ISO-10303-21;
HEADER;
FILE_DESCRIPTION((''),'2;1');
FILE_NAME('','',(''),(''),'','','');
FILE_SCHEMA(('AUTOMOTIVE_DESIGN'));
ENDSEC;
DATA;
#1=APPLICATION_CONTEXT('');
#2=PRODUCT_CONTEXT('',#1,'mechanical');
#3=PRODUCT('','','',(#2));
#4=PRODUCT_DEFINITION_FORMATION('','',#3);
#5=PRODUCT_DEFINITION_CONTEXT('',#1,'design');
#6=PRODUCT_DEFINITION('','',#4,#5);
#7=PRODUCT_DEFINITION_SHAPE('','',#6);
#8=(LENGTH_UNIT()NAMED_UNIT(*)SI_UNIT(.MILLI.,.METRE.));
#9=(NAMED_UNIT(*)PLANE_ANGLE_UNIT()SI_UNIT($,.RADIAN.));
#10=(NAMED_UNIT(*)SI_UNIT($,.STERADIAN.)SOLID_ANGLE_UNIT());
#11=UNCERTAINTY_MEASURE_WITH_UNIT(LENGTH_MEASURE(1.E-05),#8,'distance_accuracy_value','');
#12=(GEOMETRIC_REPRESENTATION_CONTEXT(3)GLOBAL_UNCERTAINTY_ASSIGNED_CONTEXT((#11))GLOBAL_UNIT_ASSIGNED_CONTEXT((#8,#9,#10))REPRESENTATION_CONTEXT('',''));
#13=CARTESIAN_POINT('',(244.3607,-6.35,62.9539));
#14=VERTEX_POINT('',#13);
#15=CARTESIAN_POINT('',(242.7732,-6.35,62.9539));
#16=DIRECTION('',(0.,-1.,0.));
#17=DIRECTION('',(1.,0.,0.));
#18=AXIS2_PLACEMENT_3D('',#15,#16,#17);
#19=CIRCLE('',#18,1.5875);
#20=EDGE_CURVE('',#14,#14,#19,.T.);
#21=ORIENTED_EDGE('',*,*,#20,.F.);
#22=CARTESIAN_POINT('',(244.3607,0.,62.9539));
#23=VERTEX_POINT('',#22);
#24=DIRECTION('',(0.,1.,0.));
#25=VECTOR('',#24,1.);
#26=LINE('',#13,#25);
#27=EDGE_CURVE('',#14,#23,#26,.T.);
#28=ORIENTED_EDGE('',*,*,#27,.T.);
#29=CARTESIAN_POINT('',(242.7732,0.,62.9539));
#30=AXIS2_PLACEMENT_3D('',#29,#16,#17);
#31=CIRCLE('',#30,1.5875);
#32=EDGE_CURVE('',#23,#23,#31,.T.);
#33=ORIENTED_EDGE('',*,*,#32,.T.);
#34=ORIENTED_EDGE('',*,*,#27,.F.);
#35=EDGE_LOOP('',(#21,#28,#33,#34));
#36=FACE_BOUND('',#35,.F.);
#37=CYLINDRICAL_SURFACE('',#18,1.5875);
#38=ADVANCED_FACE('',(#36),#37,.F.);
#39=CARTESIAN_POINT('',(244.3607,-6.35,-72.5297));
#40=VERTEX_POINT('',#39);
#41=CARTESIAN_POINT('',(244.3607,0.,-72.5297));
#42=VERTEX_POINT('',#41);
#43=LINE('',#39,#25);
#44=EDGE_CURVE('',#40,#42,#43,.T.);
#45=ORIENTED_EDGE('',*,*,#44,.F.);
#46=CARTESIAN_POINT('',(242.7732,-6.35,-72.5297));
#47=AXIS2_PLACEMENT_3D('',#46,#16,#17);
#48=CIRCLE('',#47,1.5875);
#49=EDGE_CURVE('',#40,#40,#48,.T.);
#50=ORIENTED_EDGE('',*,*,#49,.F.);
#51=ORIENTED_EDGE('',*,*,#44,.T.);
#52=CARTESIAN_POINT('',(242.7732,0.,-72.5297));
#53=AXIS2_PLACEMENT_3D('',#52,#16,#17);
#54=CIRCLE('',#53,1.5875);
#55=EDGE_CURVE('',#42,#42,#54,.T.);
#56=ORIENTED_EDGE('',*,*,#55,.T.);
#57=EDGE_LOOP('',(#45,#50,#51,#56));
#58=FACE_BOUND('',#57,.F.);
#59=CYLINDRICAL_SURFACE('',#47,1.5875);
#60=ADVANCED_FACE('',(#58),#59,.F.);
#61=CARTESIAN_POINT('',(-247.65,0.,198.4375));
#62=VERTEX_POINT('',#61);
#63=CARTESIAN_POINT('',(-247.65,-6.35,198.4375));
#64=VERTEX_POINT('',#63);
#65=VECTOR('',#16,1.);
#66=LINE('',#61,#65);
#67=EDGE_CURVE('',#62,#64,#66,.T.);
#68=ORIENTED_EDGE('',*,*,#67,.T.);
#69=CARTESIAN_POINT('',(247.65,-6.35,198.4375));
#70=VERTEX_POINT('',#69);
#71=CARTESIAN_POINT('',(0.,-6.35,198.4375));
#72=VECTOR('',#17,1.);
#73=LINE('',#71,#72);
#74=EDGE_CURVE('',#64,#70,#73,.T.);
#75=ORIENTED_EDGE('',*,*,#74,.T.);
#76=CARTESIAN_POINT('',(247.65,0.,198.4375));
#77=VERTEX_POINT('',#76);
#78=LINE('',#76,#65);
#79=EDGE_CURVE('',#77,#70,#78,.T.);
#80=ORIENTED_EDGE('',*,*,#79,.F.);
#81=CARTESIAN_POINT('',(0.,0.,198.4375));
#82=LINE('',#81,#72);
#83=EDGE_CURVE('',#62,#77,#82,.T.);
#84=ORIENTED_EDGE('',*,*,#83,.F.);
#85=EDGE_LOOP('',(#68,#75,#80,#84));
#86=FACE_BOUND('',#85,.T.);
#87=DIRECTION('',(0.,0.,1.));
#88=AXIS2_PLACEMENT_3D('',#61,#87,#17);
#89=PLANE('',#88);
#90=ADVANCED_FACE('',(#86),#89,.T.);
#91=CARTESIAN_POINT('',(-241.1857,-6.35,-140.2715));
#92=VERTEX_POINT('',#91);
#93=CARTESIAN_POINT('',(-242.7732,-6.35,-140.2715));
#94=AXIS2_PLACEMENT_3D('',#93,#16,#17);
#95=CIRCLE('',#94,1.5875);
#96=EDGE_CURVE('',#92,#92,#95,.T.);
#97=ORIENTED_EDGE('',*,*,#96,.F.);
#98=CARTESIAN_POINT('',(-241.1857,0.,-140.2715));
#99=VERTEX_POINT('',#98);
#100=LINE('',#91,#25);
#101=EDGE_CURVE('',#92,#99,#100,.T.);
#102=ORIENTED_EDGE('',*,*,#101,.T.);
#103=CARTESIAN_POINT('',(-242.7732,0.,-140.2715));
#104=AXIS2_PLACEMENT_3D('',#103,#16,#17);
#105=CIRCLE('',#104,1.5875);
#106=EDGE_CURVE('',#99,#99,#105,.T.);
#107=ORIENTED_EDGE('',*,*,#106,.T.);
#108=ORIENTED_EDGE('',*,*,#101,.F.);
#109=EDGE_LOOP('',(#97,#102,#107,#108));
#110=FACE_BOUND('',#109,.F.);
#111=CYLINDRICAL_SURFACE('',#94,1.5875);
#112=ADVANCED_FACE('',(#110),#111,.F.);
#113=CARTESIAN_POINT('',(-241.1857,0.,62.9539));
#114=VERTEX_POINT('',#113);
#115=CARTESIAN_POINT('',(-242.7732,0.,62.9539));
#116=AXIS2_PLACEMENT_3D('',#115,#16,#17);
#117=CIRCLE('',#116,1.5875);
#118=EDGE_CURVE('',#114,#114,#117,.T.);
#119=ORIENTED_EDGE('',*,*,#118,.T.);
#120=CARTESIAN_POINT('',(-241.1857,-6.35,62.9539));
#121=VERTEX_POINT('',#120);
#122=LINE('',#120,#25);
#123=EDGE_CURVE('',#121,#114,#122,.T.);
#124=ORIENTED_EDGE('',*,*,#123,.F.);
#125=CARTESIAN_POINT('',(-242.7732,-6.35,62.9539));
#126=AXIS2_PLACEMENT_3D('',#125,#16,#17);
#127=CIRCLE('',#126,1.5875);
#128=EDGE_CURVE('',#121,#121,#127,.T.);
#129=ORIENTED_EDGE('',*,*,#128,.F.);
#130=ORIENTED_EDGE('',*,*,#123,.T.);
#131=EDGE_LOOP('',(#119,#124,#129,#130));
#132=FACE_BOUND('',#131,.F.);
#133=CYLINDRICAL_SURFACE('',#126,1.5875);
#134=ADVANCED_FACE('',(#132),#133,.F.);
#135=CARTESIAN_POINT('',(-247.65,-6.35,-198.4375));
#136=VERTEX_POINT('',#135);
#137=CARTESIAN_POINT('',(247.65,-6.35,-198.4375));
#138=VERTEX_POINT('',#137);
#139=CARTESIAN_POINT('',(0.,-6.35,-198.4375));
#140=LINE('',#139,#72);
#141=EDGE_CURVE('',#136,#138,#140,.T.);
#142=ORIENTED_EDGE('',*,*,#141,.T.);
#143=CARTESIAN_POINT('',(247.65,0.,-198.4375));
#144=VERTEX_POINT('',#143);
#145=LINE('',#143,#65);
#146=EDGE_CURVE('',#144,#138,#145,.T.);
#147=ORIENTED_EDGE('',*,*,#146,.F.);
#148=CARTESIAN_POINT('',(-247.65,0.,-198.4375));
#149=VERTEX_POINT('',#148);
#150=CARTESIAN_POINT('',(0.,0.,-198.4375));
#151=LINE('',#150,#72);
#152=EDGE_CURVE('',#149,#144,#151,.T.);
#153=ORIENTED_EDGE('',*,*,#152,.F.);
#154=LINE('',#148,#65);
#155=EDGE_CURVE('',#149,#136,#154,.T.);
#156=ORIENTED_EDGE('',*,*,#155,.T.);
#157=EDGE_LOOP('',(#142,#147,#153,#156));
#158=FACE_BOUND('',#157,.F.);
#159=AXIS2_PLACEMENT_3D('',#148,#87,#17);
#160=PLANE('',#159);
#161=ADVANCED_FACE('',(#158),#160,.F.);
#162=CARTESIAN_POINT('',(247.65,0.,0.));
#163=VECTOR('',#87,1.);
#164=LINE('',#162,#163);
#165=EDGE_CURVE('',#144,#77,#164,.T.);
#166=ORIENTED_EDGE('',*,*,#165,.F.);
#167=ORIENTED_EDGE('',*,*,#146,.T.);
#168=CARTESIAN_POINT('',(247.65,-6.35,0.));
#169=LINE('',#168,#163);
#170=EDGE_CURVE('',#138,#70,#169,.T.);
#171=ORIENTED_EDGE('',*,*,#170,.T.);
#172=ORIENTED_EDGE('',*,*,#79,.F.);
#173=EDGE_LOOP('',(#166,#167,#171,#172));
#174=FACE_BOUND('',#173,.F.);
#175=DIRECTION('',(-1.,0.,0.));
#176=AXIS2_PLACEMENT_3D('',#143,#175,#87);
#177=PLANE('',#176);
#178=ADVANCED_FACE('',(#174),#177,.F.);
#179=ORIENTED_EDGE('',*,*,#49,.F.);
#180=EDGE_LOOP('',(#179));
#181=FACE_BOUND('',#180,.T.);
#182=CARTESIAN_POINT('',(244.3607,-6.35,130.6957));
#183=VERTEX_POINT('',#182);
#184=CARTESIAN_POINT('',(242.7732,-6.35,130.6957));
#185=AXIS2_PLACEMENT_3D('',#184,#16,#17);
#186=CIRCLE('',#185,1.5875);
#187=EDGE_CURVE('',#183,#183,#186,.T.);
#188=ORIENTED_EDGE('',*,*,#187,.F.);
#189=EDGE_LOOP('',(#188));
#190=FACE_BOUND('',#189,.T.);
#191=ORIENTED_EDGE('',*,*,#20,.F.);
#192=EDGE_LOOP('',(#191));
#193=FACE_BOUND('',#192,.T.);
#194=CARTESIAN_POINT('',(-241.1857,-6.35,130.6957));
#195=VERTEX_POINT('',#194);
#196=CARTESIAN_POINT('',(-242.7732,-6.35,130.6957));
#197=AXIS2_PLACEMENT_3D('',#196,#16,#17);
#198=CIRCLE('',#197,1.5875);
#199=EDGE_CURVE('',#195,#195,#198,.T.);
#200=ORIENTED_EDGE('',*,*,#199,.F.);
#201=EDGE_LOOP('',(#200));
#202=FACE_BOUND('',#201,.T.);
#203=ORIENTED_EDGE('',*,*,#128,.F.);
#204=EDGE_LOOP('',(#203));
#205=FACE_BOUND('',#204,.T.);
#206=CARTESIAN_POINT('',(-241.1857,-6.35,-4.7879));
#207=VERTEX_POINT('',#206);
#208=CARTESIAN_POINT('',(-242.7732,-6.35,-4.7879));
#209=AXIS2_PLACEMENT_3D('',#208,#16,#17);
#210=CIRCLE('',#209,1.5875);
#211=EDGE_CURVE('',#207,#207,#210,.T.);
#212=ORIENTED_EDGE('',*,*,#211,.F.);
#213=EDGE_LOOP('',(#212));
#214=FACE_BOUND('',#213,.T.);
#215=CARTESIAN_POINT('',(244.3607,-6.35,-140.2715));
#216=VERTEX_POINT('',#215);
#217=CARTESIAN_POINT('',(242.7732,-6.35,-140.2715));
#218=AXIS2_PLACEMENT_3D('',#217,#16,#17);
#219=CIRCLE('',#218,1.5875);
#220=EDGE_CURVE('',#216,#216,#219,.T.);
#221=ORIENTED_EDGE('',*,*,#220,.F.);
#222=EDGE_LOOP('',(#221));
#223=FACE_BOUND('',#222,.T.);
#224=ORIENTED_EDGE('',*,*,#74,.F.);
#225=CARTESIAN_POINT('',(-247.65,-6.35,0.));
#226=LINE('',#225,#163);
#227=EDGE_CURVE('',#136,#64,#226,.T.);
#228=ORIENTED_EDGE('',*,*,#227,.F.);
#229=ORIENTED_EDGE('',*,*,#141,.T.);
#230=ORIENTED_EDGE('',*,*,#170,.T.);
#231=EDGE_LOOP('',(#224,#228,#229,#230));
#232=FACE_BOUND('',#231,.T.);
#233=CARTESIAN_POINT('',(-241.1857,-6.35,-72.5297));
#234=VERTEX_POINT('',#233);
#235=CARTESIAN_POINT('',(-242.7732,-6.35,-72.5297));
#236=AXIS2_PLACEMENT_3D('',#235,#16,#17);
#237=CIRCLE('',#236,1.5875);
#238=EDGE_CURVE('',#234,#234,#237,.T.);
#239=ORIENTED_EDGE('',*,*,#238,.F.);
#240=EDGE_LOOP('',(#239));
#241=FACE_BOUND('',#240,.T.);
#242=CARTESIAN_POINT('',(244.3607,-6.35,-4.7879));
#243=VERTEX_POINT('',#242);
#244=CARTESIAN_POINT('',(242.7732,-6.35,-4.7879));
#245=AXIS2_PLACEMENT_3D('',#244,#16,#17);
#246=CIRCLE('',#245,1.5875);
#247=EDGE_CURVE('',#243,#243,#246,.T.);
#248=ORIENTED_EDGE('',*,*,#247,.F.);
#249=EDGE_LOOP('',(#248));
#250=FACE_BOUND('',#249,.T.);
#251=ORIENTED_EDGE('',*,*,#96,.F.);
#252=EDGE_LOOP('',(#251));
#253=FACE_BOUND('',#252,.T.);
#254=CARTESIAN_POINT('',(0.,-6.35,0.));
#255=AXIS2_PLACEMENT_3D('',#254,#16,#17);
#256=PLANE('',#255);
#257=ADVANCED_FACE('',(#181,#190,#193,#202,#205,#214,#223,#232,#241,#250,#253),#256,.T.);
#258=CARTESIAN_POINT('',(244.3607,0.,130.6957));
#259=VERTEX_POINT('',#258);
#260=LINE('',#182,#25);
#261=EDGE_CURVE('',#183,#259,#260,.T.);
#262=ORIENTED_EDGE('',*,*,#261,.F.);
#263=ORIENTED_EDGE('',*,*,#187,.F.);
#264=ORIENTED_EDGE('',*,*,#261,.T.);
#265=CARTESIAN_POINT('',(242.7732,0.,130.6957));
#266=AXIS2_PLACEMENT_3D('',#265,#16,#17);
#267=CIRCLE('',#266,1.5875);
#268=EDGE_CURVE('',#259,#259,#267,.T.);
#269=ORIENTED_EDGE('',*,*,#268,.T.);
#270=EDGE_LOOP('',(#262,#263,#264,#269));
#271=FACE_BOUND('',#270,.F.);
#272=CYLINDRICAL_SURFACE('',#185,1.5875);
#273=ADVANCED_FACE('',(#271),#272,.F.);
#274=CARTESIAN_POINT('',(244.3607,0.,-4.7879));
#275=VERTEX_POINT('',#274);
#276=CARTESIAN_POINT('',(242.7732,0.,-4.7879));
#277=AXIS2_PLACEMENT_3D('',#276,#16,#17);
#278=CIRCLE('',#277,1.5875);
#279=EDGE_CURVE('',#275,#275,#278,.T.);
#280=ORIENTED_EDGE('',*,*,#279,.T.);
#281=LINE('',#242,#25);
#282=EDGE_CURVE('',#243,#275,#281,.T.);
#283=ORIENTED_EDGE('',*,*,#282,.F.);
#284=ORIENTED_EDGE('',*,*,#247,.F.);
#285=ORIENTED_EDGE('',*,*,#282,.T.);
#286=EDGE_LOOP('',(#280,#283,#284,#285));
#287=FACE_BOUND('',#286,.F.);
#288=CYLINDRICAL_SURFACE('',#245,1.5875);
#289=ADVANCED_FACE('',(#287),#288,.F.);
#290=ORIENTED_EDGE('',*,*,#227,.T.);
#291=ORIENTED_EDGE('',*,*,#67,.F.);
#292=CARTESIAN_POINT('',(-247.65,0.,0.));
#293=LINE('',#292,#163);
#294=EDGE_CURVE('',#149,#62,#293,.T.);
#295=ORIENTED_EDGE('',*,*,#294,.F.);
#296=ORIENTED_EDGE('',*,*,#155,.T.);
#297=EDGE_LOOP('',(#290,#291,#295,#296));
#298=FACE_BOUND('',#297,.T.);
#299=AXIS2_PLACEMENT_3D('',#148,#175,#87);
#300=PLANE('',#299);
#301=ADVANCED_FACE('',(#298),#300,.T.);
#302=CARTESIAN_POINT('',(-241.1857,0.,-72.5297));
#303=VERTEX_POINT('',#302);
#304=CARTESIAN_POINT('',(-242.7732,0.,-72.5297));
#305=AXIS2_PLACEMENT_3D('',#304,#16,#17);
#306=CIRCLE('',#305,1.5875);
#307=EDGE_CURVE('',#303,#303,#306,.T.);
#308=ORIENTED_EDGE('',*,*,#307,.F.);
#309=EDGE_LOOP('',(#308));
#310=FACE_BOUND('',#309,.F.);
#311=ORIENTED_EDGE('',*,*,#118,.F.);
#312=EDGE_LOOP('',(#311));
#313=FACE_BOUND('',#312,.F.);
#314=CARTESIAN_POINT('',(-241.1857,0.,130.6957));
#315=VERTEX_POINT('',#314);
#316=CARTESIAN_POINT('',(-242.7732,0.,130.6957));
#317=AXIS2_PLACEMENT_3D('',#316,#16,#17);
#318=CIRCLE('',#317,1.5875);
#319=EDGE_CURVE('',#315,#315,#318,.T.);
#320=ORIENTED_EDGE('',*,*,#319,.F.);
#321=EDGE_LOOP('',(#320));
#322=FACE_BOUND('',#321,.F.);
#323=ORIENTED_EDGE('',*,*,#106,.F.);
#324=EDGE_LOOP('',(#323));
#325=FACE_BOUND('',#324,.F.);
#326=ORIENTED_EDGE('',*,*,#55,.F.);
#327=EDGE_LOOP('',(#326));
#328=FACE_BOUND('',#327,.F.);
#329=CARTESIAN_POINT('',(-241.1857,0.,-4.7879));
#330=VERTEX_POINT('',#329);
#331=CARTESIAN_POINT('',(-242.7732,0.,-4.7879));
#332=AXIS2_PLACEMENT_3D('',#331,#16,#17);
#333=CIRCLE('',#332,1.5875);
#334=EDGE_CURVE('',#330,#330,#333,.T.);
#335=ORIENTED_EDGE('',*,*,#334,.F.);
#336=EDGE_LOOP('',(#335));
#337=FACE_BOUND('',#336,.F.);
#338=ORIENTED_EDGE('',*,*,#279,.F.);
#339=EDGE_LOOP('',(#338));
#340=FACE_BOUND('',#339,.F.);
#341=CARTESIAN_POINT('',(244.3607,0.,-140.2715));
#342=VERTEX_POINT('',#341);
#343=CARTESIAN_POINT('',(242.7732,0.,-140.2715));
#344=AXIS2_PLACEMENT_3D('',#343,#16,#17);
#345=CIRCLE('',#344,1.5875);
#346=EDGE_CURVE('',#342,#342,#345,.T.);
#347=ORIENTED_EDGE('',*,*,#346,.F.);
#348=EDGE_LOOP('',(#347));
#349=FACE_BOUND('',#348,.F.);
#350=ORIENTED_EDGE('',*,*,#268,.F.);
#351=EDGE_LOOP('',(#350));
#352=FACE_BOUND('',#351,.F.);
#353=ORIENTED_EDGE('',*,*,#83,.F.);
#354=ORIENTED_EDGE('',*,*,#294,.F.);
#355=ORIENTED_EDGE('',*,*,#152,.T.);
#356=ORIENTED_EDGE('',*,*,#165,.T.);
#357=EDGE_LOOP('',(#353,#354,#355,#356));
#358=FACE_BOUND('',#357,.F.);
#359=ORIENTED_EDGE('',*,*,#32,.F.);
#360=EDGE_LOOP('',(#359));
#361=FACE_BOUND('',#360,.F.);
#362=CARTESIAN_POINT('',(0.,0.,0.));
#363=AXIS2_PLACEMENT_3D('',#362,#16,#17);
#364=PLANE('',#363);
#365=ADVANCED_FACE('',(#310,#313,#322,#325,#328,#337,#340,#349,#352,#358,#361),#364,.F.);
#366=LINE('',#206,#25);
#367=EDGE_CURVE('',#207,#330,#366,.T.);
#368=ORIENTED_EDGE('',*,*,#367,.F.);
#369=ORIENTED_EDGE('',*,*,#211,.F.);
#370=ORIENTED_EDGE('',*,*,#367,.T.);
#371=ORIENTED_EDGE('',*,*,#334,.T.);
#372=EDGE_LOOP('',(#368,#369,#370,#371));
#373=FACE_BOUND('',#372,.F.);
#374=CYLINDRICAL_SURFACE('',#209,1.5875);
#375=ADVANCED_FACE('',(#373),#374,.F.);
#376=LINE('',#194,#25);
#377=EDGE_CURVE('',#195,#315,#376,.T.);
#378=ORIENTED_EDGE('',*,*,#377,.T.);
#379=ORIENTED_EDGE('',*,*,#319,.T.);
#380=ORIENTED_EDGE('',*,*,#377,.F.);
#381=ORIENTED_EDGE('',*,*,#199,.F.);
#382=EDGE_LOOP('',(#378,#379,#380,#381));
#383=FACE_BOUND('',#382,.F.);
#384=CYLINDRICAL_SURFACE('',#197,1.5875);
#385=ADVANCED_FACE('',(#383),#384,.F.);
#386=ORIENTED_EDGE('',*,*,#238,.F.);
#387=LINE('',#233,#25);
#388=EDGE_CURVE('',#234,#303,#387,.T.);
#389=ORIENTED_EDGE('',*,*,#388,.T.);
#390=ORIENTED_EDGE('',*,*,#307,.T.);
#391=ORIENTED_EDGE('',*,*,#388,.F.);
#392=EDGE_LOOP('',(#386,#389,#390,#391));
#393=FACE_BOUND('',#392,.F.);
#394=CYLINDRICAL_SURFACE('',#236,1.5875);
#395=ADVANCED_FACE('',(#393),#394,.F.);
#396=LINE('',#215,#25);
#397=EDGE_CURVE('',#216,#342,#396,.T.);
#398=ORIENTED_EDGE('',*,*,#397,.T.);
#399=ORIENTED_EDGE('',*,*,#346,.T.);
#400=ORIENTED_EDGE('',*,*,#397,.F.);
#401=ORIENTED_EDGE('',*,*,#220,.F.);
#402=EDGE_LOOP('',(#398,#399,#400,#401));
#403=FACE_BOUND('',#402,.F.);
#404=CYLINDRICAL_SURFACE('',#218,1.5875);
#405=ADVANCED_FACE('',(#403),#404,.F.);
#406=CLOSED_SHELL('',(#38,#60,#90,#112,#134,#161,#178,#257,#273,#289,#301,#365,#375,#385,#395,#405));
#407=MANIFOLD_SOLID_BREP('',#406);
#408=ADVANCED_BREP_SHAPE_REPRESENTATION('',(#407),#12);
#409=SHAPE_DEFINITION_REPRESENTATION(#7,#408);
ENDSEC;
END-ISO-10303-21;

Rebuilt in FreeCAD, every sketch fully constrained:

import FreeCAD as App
import Part
import Sketcher
Q = App.Units.Quantity

doc = App.newDocument("Part")
body = doc.addObject("PartDesign::Body", "Body")

sketch1 = body.newObject("Sketcher::SketchObject", "Sketch")
sketch1.AttachmentSupport = (doc.getObject("XZ_Plane"), [""])
sketch1.MapMode = "FlatFace"
sketch1.addGeometry(Part.LineSegment(App.Vector(-248, 198, 0), App.Vector(-248, -198, 0)), False)
sketch1.addGeometry(Part.LineSegment(App.Vector(-248, -198, 0), App.Vector(248, -198, 0)), False)
sketch1.addGeometry(Part.LineSegment(App.Vector(248, -198, 0), App.Vector(248, 198, 0)), False)
sketch1.addGeometry(Part.LineSegment(App.Vector(248, 198, 0), App.Vector(-248, 198, 0)), False)
sketch1.addConstraint(Sketcher.Constraint("Coincident", 0, 2, 1, 1))
sketch1.addConstraint(Sketcher.Constraint("Coincident", 1, 2, 2, 1))
sketch1.addConstraint(Sketcher.Constraint("Coincident", 2, 2, 3, 1))
sketch1.addConstraint(Sketcher.Constraint("Coincident", 3, 2, 0, 1))
sketch1.addConstraint(Sketcher.Constraint("Vertical", 0))
sketch1.addConstraint(Sketcher.Constraint("Horizontal", 1))
sketch1.addConstraint(Sketcher.Constraint("Vertical", 2))
sketch1.addConstraint(Sketcher.Constraint("Horizontal", 3))
sketch1.addConstraint(Sketcher.Constraint("Symmetric", 0, 2, 2, 2, -1, 1))
sketch1.addConstraint(Sketcher.Constraint("DistanceX", 1, 1, 1, 2, Q("19.5 in")))
sketch1.addConstraint(Sketcher.Constraint("DistanceY", 0, 2, 0, 1, Q("15.625 in")))
pad1 = body.newObject("PartDesign::Pad", "Pad")
pad1.Profile = sketch1
pad1.Length = Q("0.25 in")

sketch2 = body.newObject("Sketcher::SketchObject", "Sketch001")
sketch2.AttachmentSupport = (doc.getObject("XZ_Plane"), [""])
sketch2.MapMode = "FlatFace"
sketch2.AttachmentOffset = App.Placement(App.Vector(0, 0, 0.25 * 25.4), App.Rotation())
sketch2.addGeometry(Part.Circle(App.Vector(-242.8, 130.7, 0), App.Vector(0, 0, 1), 1.6), False)
sketch2.addGeometry(Part.Circle(App.Vector(-242.8, 63, 0), App.Vector(0, 0, 1), 1.6), False)
sketch2.addGeometry(Part.Circle(App.Vector(-242.8, -4.8, 0), App.Vector(0, 0, 1), 1.6), False)
sketch2.addGeometry(Part.Circle(App.Vector(-242.8, -72.5, 0), App.Vector(0, 0, 1), 1.6), False)
sketch2.addGeometry(Part.Circle(App.Vector(-242.8, -140.3, 0), App.Vector(0, 0, 1), 1.6), False)
sketch2.addGeometry(Part.Circle(App.Vector(242.8, 130.7, 0), App.Vector(0, 0, 1), 1.6), False)
sketch2.addGeometry(Part.Circle(App.Vector(242.8, 63, 0), App.Vector(0, 0, 1), 1.6), False)
sketch2.addGeometry(Part.Circle(App.Vector(242.8, -4.8, 0), App.Vector(0, 0, 1), 1.6), False)
sketch2.addGeometry(Part.Circle(App.Vector(242.8, -72.5, 0), App.Vector(0, 0, 1), 1.6), False)
sketch2.addGeometry(Part.Circle(App.Vector(242.8, -140.3, 0), App.Vector(0, 0, 1), 1.6), False)
sketch2.addConstraint(Sketcher.Constraint("Equal", 0, 1))
sketch2.addConstraint(Sketcher.Constraint("Equal", 1, 2))
sketch2.addConstraint(Sketcher.Constraint("Equal", 2, 3))
sketch2.addConstraint(Sketcher.Constraint("Equal", 3, 4))
sketch2.addConstraint(Sketcher.Constraint("Equal", 4, 5))
sketch2.addConstraint(Sketcher.Constraint("Equal", 5, 6))
sketch2.addConstraint(Sketcher.Constraint("Equal", 6, 7))
sketch2.addConstraint(Sketcher.Constraint("Equal", 7, 8))
sketch2.addConstraint(Sketcher.Constraint("Equal", 8, 9))
sketch2.addConstraint(Sketcher.Constraint("Symmetric", 0, 3, 5, 3, -2))
sketch2.addConstraint(Sketcher.Constraint("Symmetric", 1, 3, 6, 3, -2))
sketch2.addConstraint(Sketcher.Constraint("Symmetric", 2, 3, 7, 3, -2))
sketch2.addConstraint(Sketcher.Constraint("Symmetric", 3, 3, 8, 3, -2))
sketch2.addConstraint(Sketcher.Constraint("Symmetric", 4, 3, 9, 3, -2))
sketch2.addConstraint(Sketcher.Constraint("Vertical", 0, 3, 1, 3))
sketch2.addConstraint(Sketcher.Constraint("Vertical", 1, 3, 2, 3))
sketch2.addConstraint(Sketcher.Constraint("Vertical", 2, 3, 3, 3))
sketch2.addConstraint(Sketcher.Constraint("Vertical", 3, 3, 4, 3))
sketch2.addConstraint(Sketcher.Constraint("Diameter", 0, Q("0.125 in")))
sketch2.addConstraint(Sketcher.Constraint("DistanceX", 0, 3, -1, 1, Q("9.558 in")))
sketch2.addConstraint(Sketcher.Constraint("DistanceY", 1, 3, 0, 3, Q("2.667 in")))
sketch2.addConstraint(Sketcher.Constraint("DistanceY", 2, 3, 1, 3, Q("2.667 in")))
sketch2.addConstraint(Sketcher.Constraint("DistanceY", 3, 3, 2, 3, Q("2.667 in")))
sketch2.addConstraint(Sketcher.Constraint("DistanceY", 4, 3, 3, 3, Q("2.667 in")))
sketch2.addConstraint(Sketcher.Constraint("DistanceY", -1, 1, 0, 3, Q("5.1455 in")))
pocket1 = body.newObject("PartDesign::Pocket", "Pocket")
pocket1.Profile = sketch2
pocket1.Length = Q("1 in")

doc.recompute()
